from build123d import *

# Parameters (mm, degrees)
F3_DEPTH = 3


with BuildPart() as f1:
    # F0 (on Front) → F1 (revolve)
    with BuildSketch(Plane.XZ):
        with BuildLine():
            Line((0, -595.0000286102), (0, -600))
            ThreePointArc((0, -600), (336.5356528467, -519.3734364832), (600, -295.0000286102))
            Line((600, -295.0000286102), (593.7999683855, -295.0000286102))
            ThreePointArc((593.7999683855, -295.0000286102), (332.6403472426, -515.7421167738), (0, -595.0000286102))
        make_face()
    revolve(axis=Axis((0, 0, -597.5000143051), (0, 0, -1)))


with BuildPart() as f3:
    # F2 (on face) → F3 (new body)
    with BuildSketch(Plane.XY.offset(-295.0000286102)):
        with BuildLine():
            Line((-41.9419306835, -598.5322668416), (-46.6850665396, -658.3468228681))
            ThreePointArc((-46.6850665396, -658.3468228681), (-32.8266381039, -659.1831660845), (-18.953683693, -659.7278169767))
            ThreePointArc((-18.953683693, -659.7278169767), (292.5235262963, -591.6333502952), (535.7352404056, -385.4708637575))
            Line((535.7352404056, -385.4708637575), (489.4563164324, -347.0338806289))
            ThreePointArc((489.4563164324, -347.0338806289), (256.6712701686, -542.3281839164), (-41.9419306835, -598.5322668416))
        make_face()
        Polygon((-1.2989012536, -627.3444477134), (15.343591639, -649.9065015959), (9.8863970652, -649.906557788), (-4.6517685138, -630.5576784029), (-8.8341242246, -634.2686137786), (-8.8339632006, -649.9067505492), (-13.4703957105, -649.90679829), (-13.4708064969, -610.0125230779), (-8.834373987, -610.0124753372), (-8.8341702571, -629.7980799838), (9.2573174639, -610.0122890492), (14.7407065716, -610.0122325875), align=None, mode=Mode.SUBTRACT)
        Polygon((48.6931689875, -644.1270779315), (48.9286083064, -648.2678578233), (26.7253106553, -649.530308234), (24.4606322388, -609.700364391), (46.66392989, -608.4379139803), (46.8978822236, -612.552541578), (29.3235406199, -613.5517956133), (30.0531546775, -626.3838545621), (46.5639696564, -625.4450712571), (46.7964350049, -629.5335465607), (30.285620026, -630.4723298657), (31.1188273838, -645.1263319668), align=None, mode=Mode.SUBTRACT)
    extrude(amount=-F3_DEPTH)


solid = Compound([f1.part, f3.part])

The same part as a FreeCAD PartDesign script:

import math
import FreeCAD as App
import Part
import Sketcher
Q = App.Units.Quantity


def add_polygon(sketch, points):
    """Adds a closed chain of lines whose ends are joined by coincident constraints."""
    first, n = sketch.GeometryCount, len(points)
    for a, b in zip(points, points[1:] + points[:1]):
        sketch.addGeometry(Part.LineSegment(App.Vector(*a, 0), App.Vector(*b, 0)), False)
    for i in range(n):
        sketch.addConstraint(Sketcher.Constraint("Coincident", first + i, 2, first + (i + 1) % n, 1))

doc = App.newDocument("Part")
body = doc.addObject("PartDesign::Body", "Body")

sketch1 = body.newObject("Sketcher::SketchObject", "Sketch")
sketch1.AttachmentSupport = (doc.getObject("XZ_Plane"), [""])
sketch1.MapMode = "FlatFace"
sketch1.addGeometry(Part.LineSegment(App.Vector(0, -595.000029, 0), App.Vector(0, -600, 0)), False)
sketch1.addGeometry(Part.ArcOfCircle(Part.Circle(App.Vector(0, 142.663975, 0), App.Vector(0, 0, 1), 742.663975), math.radians(-90), math.radians(-36.108507)), False)
sketch1.addGeometry(Part.LineSegment(App.Vector(600, -295.000029, 0), App.Vector(593.799968, -295.000029, 0)), False)
sketch1.addGeometry(Part.ArcOfCircle(Part.Circle(App.Vector(0, 142.663975, 0), App.Vector(0, 0, 1), 737.664004), math.radians(-90), math.radians(-36.392305)), False)
sketch1.addConstraint(Sketcher.Constraint("Coincident", 0, 2, 1, 1))
sketch1.addConstraint(Sketcher.Constraint("Coincident", 1, 2, 2, 1))
sketch1.addConstraint(Sketcher.Constraint("Coincident", 2, 2, 3, 2))
sketch1.addConstraint(Sketcher.Constraint("Coincident", 3, 1, 0, 1))
sketch1.addConstraint(Sketcher.Constraint("Vertical", 0))
sketch1.addConstraint(Sketcher.Constraint("Horizontal", 2))
sketch1.addConstraint(Sketcher.Constraint("Coincident", 3, 3, 1, 3))
sketch1.addConstraint(Sketcher.Constraint("PointOnObject", 1, 3, -2))
sketch1.addConstraint(Sketcher.Constraint("PointOnObject", 0, 2, -2))
sketch1.addConstraint(Sketcher.Constraint("DistanceY", 0, 2, -1, 1, Q("600 mm")))
sketch1.addConstraint(Sketcher.Constraint("DistanceY", 3, 1, 2, 2, Q("300 mm")))
sketch1.addConstraint(Sketcher.Constraint("Radius", 1, Q("742.663975 mm")))
sketch1.addConstraint(Sketcher.Constraint("Radius", 3, Q("737.664004 mm")))
revolution = body.newObject("PartDesign::Revolution", "Revolution")
revolution.Profile = sketch1
revolution.ReferenceAxis = (sketch1, ["V_Axis"])
revolution.Angle = 360
body2 = doc.addObject("PartDesign::Body", "Body001")

sketch2 = body2.newObject("Sketcher::SketchObject", "Sketch001")
sketch2.AttachmentSupport = (doc.getObject("XY_Plane001"), [""])
sketch2.MapMode = "FlatFace"
sketch2.AttachmentOffset = App.Placement(App.Vector(0, 0, -295.000029), App.Rotation())
sketch2.addGeometry(Part.LineSegment(App.Vector(-41.941931, -598.532267, 0), App.Vector(-46.685067, -658.346823, 0)), False)
sketch2.addGeometry(Part.ArcOfCircle(Part.Circle(App.Vector(0, 0, 0), App.Vector(0, 0, 1), 660.000026), math.radians(-94.056201), math.radians(-91.645629)), False)
sketch2.addGeometry(Part.ArcOfCircle(Part.Circle(App.Vector(0, 0, 0), App.Vector(0, 0, 1), 660.000026), math.radians(-91.645629), math.radians(-35.735675)), False)
sketch2.addGeometry(Part.LineSegment(App.Vector(535.73524, -385.470864, 0), App.Vector(489.456316, -347.033881, 0)), False)
sketch2.addGeometry(Part.ArcOfCircle(Part.Circle(App.Vector(0, 0, 0), App.Vector(0, 0, 1), 600), math.radians(-94.008428), math.radians(-35.337369)), False)
add_polygon(sketch2, [(14.740707, -610.012233), (-1.298901, -627.344448), (15.343592, -649.906502), (9.886397, -649.906558), (-4.651769, -630.557678), (-8.834124, -634.268614), (-8.833963, -649.906751), (-13.470396, -649.906798), (-13.470806, -610.012523), (-8.834374, -610.012475), (-8.83417, -629.79808), (9.257317, -610.012289)])
add_polygon(sketch2, [(31.118827, -645.126332), (48.693169, -644.127078), (48.928608, -648.267858), (26.725311, -649.530308), (24.460632, -609.700364), (46.66393, -608.437914), (46.897882, -612.552542), (29.323541, -613.551796), (30.053155, -626.383855), (46.56397, -625.445071), (46.796435, -629.533547), (30.28562, -630.47233)])
sketch2.addConstraint(Sketcher.Constraint("Coincident", 0, 2, 1, 1))
sketch2.addConstraint(Sketcher.Constraint("Coincident", 1, 2, 2, 1))
sketch2.addConstraint(Sketcher.Constraint("Coincident", 2, 2, 3, 1))
sketch2.addConstraint(Sketcher.Constraint("Coincident", 3, 2, 4, 2))
sketch2.addConstraint(Sketcher.Constraint("Coincident", 4, 1, 0, 1))
sketch2.addConstraint(Sketcher.Constraint("Coincident", 1, 3, -1, 1))
sketch2.addConstraint(Sketcher.Constraint("Coincident", 2, 3, -1, 1))
sketch2.addConstraint(Sketcher.Constraint("Coincident", 4, 3, -1, 1))
sketch2.addConstraint(Sketcher.Constraint("Perpendicular", 7, 10))
sketch2.addConstraint(Sketcher.Constraint("Perpendicular", 10, 11))
sketch2.addConstraint(Sketcher.Constraint("Perpendicular", 11, 12))
sketch2.addConstraint(Sketcher.Constraint("Perpendicular", 12, 13))
sketch2.addConstraint(Sketcher.Constraint("Perpendicular", 13, 14))
sketch2.addConstraint(Sketcher.Constraint("Perpendicular", 14, 16))
sketch2.addConstraint(Sketcher.Constraint("Perpendicular", 17, 18))
sketch2.addConstraint(Sketcher.Constraint("Perpendicular", 18, 19))
sketch2.addConstraint(Sketcher.Constraint("Perpendicular", 19, 20))
sketch2.addConstraint(Sketcher.Constraint("Perpendicular", 20, 21))
sketch2.addConstraint(Sketcher.Constraint("Perpendicular", 21, 22))
sketch2.addConstraint(Sketcher.Constraint("Perpendicular", 22, 23))
sketch2.addConstraint(Sketcher.Constraint("Perpendicular", 23, 24))
sketch2.addConstraint(Sketcher.Constraint("Perpendicular", 24, 25))
sketch2.addConstraint(Sketcher.Constraint("Perpendicular", 25, 26))
sketch2.addConstraint(Sketcher.Constraint("Perpendicular", 26, 27))
sketch2.addConstraint(Sketcher.Constraint("Perpendicular", 27, 28))
sketch2.addConstraint(Sketcher.Constraint("Equal", 11, 13))
sketch2.addConstraint(Sketcher.Constraint("Equal", 12, 20))
sketch2.addConstraint(Sketcher.Constraint("Equal", 19, 21))
sketch2.addConstraint(Sketcher.Constraint("Equal", 17, 23))
sketch2.addConstraint(Sketcher.Constraint("Radius", 4, Q("600 mm")))
sketch2.addConstraint(Sketcher.Constraint("DistanceX", 1, 2, 3, 2, Q("508.41 mm")))
sketch2.addConstraint(Sketcher.Constraint("Radius", 1, Q("660.000026 mm")))
sketch2.addConstraint(Sketcher.Constraint("DistanceX", 5, 2, -1, 1, Q("1.298901 mm")))
sketch2.addConstraint(Sketcher.Constraint("DistanceY", 6, 2, -1, 1, Q("649.906502 mm")))
sketch2.addConstraint(Sketcher.Constraint("DistanceY", 11, 2, -1, 1, Q("649.906798 mm")))
sketch2.addConstraint(Sketcher.Constraint("DistanceX", 5, 2, 7, 2, Q("11.185298 mm")))
sketch2.addConstraint(Sketcher.Constraint("DistanceX", 14, 2, 8, 2, Q("4.182402 mm")))
sketch2.addConstraint(Sketcher.Constraint("DistanceY", 8, 2, 14, 2, Q("0.759598 mm")))
sketch2.addConstraint(Sketcher.Constraint("DistanceY", 7, 2, 18, 2, Q("1.6387 mm")))
sketch2.addConstraint(Sketcher.Constraint("DistanceX", 16, 2, 18, 2, Q("34.187902 mm")))
sketch2.addConstraint(Sketcher.Constraint("DistanceX", 8, 2, 20, 2, Q("29.112401 mm")))
sketch2.addConstraint(Sketcher.Constraint("DistanceX", 25, 2, 17, 2, Q("2.129199 mm")))
sketch2.addConstraint(Sketcher.Constraint("Distance", 0, Q("60.00232 mm")))
sketch2.addConstraint(Sketcher.Constraint("Distance", 16, Q("5.483389 mm")))
sketch2.addConstraint(Sketcher.Constraint("Distance", 19, Q("22.239159 mm")))
sketch2.addConstraint(Sketcher.Constraint("Distance", 26, Q("4.095079 mm")))
sketch2.addConstraint(Sketcher.Constraint("Distance", 28, Q("14.677671 mm")))
sketch2.addConstraint(Sketcher.Constraint("DistanceY", 3, 2, -1, 1, Q("347.033881 mm")))
sketch2.addConstraint(Sketcher.Constraint("DistanceX", -1, 1, 6, 2, Q("15.343592 mm")))
sketch2.addConstraint(Sketcher.Constraint("DistanceX", 8, 2, -1, 1, Q("4.651769 mm")))
sketch2.addConstraint(Sketcher.Constraint("DistanceY", 8, 2, -1, 1, Q("630.557678 mm")))
sketch2.addConstraint(Sketcher.Constraint("DistanceY", 10, 2, -1, 1, Q("649.906751 mm")))
sketch2.addConstraint(Sketcher.Constraint("DistanceY", 15, 2, -1, 1, Q("610.012289 mm")))
sketch2.addConstraint(Sketcher.Constraint("DistanceX", -1, 1, 17, 2, Q("48.693169 mm")))
sketch2.addConstraint(Sketcher.Constraint("DistanceX", -1, 1, 18, 2, Q("48.928608 mm")))
sketch2.addConstraint(Sketcher.Constraint("DistanceY", 19, 2, -1, 1, Q("649.530308 mm")))
sketch2.addConstraint(Sketcher.Constraint("DistanceY", 22, 2, -1, 1, Q("612.552542 mm")))
sketch2.addConstraint(Sketcher.Constraint("DistanceX", -1, 1, 23, 2, Q("29.323541 mm")))
sketch2.addConstraint(Sketcher.Constraint("DistanceY", 1, 2, 5, 2, Q("32.383369 mm")))
sketch2.addConstraint(Sketcher.Constraint("DistanceX", 0, 2, 6, 2, Q("62.028658 mm")))
sketch2.addConstraint(Sketcher.Constraint("DistanceX", 11, 2, 9, 2, Q("4.636271 mm")))
sketch2.addConstraint(Sketcher.Constraint("DistanceY", 9, 2, 12, 2, Q("24.256091 mm")))
sketch2.addConstraint(Sketcher.Constraint("Distance", 3, Q("60.159293 mm")))
pad1 = body2.newObject("PartDesign::Pad", "Pad")
pad1.Profile = sketch2
pad1.Length = 3
pad1.Reversed = True

doc.recompute()
